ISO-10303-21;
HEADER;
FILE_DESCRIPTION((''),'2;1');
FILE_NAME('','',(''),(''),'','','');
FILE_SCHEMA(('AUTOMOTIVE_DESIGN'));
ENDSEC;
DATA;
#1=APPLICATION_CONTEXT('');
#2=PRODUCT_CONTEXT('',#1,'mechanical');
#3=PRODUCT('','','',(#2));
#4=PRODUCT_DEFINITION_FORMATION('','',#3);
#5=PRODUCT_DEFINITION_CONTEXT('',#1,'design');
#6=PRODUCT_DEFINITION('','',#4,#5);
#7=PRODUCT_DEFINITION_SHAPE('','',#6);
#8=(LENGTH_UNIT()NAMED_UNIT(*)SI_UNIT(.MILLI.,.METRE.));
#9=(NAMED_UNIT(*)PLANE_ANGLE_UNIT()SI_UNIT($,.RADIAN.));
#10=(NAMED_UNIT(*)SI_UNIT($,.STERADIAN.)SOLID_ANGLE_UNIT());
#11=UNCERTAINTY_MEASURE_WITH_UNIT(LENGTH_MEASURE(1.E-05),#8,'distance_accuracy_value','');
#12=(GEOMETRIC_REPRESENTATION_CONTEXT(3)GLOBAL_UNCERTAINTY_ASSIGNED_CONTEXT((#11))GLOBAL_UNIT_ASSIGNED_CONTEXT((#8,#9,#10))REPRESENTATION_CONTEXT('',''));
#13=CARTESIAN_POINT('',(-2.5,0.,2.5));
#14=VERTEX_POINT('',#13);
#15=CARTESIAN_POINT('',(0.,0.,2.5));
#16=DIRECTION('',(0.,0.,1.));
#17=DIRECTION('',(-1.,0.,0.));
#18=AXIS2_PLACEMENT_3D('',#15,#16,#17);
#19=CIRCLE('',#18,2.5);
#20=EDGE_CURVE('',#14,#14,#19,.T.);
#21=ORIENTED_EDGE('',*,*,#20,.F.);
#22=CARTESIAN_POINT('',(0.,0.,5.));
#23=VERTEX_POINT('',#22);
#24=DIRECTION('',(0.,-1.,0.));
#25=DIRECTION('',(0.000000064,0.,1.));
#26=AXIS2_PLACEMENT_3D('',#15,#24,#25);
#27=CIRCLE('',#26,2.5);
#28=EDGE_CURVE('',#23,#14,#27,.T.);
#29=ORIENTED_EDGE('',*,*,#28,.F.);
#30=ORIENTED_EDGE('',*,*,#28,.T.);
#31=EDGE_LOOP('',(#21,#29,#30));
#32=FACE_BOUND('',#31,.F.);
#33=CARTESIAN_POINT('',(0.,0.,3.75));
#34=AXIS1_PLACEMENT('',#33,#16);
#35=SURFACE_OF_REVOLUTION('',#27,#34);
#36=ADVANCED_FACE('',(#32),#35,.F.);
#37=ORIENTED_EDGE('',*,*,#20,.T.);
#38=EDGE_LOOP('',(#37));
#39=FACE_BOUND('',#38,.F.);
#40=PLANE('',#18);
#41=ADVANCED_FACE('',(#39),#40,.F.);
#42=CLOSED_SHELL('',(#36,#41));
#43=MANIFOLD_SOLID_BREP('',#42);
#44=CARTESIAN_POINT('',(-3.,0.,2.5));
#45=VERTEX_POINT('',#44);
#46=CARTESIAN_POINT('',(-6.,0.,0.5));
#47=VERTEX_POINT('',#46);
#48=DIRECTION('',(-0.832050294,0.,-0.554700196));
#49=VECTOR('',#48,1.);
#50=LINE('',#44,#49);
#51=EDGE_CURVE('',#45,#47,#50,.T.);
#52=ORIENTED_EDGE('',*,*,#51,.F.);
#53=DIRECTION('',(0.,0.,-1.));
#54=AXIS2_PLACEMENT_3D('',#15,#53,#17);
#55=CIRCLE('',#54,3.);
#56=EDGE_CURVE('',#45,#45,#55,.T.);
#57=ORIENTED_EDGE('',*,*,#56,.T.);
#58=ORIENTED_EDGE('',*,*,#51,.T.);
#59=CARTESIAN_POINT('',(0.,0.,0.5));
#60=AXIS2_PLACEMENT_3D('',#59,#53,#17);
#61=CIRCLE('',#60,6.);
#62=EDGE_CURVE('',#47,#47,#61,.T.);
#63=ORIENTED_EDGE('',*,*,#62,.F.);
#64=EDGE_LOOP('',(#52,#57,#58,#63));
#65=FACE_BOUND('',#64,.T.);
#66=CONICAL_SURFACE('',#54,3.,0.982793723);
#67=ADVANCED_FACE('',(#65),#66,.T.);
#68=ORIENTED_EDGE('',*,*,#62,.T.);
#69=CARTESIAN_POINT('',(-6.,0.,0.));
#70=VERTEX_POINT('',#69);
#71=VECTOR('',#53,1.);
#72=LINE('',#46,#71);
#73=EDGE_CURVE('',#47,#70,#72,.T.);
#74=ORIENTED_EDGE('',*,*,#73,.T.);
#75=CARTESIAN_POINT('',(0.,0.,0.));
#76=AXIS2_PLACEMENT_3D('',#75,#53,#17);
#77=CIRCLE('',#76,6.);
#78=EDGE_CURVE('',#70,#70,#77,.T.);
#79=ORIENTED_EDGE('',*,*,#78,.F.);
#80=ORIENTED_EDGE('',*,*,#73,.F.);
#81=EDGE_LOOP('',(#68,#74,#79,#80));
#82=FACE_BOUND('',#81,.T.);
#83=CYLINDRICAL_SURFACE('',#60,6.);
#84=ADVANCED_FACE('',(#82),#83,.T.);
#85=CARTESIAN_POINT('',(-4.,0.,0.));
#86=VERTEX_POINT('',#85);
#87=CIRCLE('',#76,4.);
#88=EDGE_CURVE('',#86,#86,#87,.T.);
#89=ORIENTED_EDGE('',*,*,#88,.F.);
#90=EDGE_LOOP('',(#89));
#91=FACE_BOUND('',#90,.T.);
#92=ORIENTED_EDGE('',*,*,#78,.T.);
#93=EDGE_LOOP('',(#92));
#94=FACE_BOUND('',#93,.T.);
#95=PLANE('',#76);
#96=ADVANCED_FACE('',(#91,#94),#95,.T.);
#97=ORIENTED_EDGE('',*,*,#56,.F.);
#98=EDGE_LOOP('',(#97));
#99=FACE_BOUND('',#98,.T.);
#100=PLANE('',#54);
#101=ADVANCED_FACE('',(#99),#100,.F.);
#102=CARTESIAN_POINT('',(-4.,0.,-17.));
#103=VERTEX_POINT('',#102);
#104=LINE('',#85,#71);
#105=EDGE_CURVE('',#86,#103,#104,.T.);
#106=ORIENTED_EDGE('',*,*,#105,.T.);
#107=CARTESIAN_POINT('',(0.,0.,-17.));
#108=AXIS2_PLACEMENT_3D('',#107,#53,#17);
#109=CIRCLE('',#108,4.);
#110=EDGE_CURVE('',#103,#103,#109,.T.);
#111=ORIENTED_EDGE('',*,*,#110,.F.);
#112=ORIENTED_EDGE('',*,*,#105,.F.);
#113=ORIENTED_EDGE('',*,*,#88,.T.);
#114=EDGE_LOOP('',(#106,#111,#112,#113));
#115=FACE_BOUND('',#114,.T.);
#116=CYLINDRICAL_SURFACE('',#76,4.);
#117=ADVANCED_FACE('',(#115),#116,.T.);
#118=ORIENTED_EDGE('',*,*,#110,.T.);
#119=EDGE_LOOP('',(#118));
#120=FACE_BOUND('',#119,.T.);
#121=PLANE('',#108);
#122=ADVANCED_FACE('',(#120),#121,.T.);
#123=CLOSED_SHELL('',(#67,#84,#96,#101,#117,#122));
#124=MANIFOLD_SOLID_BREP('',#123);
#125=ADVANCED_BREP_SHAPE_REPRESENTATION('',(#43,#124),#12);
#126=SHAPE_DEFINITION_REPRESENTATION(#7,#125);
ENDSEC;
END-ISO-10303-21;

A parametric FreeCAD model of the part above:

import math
import FreeCAD as App
import Part
import Sketcher

V = App.Vector
Q = App.Units.Quantity

doc = App.newDocument("Part")
body = doc.addObject("PartDesign::Body", "Body")

# Sketch on XZ plane
sketch1 = doc.addObject("Sketcher::SketchObject", "Sketch")
body.addObject(sketch1)
sketch1.AttachmentSupport = (doc.XZ_Plane, [""])
sketch1.MapMode = "FlatFace"
sketch1.addGeometry(Part.LineSegment(V(0, -17, 0), V(0, 2.5, 0)), False)
sketch1.addGeometry(Part.LineSegment(V(0, 2.5, 0), V(-3, 2.5, 0)), False)
sketch1.addGeometry(Part.LineSegment(V(-3, 2.5, 0), V(-6, 0.5, 0)), False)
sketch1.addGeometry(Part.LineSegment(V(-6, 0.5, 0), V(-6, 0, 0)), False)
sketch1.addGeometry(Part.LineSegment(V(-6, 0, 0), V(-4, 0, 0)), False)
sketch1.addGeometry(Part.LineSegment(V(-4, 0, 0), V(-4, -17, 0)), False)
sketch1.addGeometry(Part.LineSegment(V(-4, -17, 0), V(0, -17, 0)), False)
sketch1.addConstraint(Sketcher.Constraint("Coincident", 0, 2, 1, 1))
sketch1.addConstraint(Sketcher.Constraint("Coincident", 1, 2, 2, 1))
sketch1.addConstraint(Sketcher.Constraint("Coincident", 2, 2, 3, 1))
sketch1.addConstraint(Sketcher.Constraint("Coincident", 3, 2, 4, 1))
sketch1.addConstraint(Sketcher.Constraint("Coincident", 4, 2, 5, 1))
sketch1.addConstraint(Sketcher.Constraint("Coincident", 5, 2, 6, 1))
sketch1.addConstraint(Sketcher.Constraint("Coincident", 6, 2, 0, 1))
sketch1.addConstraint(Sketcher.Constraint("Vertical", 0))
sketch1.addConstraint(Sketcher.Constraint("Horizontal", 1))
sketch1.addConstraint(Sketcher.Constraint("Vertical", 3))
sketch1.addConstraint(Sketcher.Constraint("Horizontal", 4))
sketch1.addConstraint(Sketcher.Constraint("Vertical", 5))
sketch1.addConstraint(Sketcher.Constraint("Horizontal", 6))
sketch1.addConstraint(Sketcher.Constraint("PointOnObject", 0, 2, -2))
sketch1.addConstraint(Sketcher.Constraint("PointOnObject", 3, 2, -1))
sketch1.addConstraint(Sketcher.Constraint("DistanceX", 1, 2, 1, 1, Q("3 mm")))
sketch1.addConstraint(Sketcher.Constraint("DistanceX", 4, 1, 4, 2, Q("2 mm")))
sketch1.addConstraint(Sketcher.Constraint("DistanceX", 6, 1, 6, 2, Q("4 mm")))
sketch1.addConstraint(Sketcher.Constraint("DistanceY", 5, 2, 5, 1, Q("17 mm")))
sketch1.addConstraint(Sketcher.Constraint("DistanceY", 0, 1, 0, 2, Q("19.5 mm")))
sketch1.addConstraint(Sketcher.Constraint("DistanceY", 3, 2, 3, 1, Q("0.5 mm")))
revolution = doc.addObject("PartDesign::Revolution", "Revolution")
body.addObject(revolution)
revolution.Profile = sketch1
revolution.ReferenceAxis = (sketch1, ["V_Axis"])
revolution.Angle = 360
body2 = doc.addObject("PartDesign::Body", "Body001")

# Sketch on XZ plane
sketch2 = doc.addObject("Sketcher::SketchObject", "Sketch001")
body2.addObject(sketch2)
sketch2.AttachmentSupport = (doc.getObject("XZ_Plane001"), [""])
sketch2.MapMode = "FlatFace"
sketch2.addGeometry(Part.LineSegment(V(-2.5, 2.5, 0), V(0, 2.5, 0)), False)
sketch2.addGeometry(Part.LineSegment(V(0, 2.5, 0), V(0, 5, 0)), False)
sketch2.addGeometry(Part.ArcOfCircle(Part.Circle(V(0, 2.5, 0), V(0, 0, 1), 2.5), math.radians(90), math.radians(180)), False)
sketch2.addConstraint(Sketcher.Constraint("Coincident", 0, 2, 1, 1))
sketch2.addConstraint(Sketcher.Constraint("Coincident", 1, 2, 2, 1))
sketch2.addConstraint(Sketcher.Constraint("Coincident", 2, 2, 0, 1))
sketch2.addConstraint(Sketcher.Constraint("Horizontal", 0))
sketch2.addConstraint(Sketcher.Constraint("Vertical", 1))
sketch2.addConstraint(Sketcher.Constraint("Coincident", 0, 2, 2, 3))
sketch2.addConstraint(Sketcher.Constraint("PointOnObject", 2, 3, -2))
sketch2.addConstraint(Sketcher.Constraint("Radius", 2, Q("2.5 mm")))
sketch2.addConstraint(Sketcher.Constraint("DistanceY", -1, 1, 1, 2, Q("5 mm")))
revolution2 = doc.addObject("PartDesign::Revolution", "Revolution001")
body2.addObject(revolution2)
revolution2.Profile = sketch2
revolution2.ReferenceAxis = (sketch2, ["V_Axis"])
revolution2.Angle = 360

doc.recompute()
